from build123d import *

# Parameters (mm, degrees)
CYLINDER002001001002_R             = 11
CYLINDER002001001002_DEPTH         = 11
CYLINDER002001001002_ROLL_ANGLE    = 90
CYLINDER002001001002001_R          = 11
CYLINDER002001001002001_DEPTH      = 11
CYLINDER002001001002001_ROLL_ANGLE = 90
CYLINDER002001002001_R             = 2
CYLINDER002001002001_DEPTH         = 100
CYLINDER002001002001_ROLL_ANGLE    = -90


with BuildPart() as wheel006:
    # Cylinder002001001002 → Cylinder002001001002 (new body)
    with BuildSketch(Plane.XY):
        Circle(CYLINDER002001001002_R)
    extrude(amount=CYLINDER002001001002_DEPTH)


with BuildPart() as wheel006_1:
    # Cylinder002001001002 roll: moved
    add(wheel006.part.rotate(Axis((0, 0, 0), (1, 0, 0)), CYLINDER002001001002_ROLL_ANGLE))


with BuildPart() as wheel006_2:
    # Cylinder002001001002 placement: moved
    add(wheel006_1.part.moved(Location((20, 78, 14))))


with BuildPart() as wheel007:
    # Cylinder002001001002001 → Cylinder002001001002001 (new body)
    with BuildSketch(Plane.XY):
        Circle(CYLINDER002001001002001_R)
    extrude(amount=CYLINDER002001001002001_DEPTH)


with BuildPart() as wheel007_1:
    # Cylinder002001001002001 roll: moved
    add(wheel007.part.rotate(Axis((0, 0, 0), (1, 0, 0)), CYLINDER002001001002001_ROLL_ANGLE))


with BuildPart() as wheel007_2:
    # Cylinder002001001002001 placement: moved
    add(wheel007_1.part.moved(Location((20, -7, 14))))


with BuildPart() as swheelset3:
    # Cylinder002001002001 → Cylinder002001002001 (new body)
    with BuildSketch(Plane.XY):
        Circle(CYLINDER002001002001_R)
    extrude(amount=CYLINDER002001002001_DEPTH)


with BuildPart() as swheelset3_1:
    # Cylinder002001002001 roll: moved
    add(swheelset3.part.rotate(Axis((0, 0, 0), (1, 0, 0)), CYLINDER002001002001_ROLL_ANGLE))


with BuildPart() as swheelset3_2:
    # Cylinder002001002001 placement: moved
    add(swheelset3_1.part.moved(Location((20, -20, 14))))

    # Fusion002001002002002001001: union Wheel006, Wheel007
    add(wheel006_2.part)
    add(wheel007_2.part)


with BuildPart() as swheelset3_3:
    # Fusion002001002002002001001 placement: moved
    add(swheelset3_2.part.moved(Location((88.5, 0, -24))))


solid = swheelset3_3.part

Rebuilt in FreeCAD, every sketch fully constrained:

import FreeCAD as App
import Part
import Sketcher
from FreeCAD import Vector

doc = App.newDocument("Part")
body = doc.addObject("PartDesign::Body", "Body")

sketch1 = doc.addObject("Sketcher::SketchObject", "Sketch")
body.addObject(sketch1)
sketch1.AttachmentSupport = (doc.XY_Plane, [""])
sketch1.MapMode = "FlatFace"
sketch1.addGeometry(Part.Circle(Vector(0, 0, 0), Vector(0, 0, 1), 11), False)
sketch1.addConstraint([
    Sketcher.Constraint("Coincident", 0, 3, -1, 1),
    Sketcher.Constraint("Diameter", 0, 22.0),
])
pad1 = doc.addObject("PartDesign::Pad", "Pad")
body.addObject(pad1)
pad1.Profile = sketch1
pad1.Length = 11
body2 = doc.addObject("PartDesign::Body", "Body001")
doc.recompute()

body.Placement = App.Placement(Vector(0, 0, 0), App.Rotation(Vector(1, 0, 0), 90))
boolean = doc.addObject("PartDesign::Boolean", "Boolean")
body2.addObject(boolean)
boolean.Type = "Fuse"
boolean.addObjects([body])
body3 = doc.addObject("PartDesign::Body", "Body002")
doc.recompute()

body2.Placement = App.Placement(Vector(20, 78, 14), App.Rotation(Vector(0, 0, 1), 0))
boolean2 = doc.addObject("PartDesign::Boolean", "Boolean001")
body3.addObject(boolean2)
boolean2.Type = "Fuse"
boolean2.addObjects([body2])
body4 = doc.addObject("PartDesign::Body", "Body003")

sketch2 = doc.addObject("Sketcher::SketchObject", "Sketch001")
body4.addObject(sketch2)
sketch2.AttachmentSupport = (doc.getObject("XY_Plane003"), [""])
sketch2.MapMode = "FlatFace"
sketch2.addGeometry(Part.Circle(Vector(0, 0, 0), Vector(0, 0, 1), 11), False)
sketch2.addConstraint([
    Sketcher.Constraint("Coincident", 0, 3, -1, 1),
    Sketcher.Constraint("Diameter", 0, 22.0),
])
pad2 = doc.addObject("PartDesign::Pad", "Pad001")
body4.addObject(pad2)
pad2.Profile = sketch2
pad2.Length = 11
body5 = doc.addObject("PartDesign::Body", "Body004")
doc.recompute()

body4.Placement = App.Placement(Vector(0, 0, 0), App.Rotation(Vector(1, 0, 0), 90))
boolean3 = doc.addObject("PartDesign::Boolean", "Boolean002")
body5.addObject(boolean3)
boolean3.Type = "Fuse"
boolean3.addObjects([body4])
body6 = doc.addObject("PartDesign::Body", "Body005")
doc.recompute()

body5.Placement = App.Placement(Vector(20, -7, 14), App.Rotation(Vector(0, 0, 1), 0))
boolean4 = doc.addObject("PartDesign::Boolean", "Boolean003")
body6.addObject(boolean4)
boolean4.Type = "Fuse"
boolean4.addObjects([body5])
body7 = doc.addObject("PartDesign::Body", "Body006")

sketch3 = doc.addObject("Sketcher::SketchObject", "Sketch002")
body7.addObject(sketch3)
sketch3.AttachmentSupport = (doc.getObject("XY_Plane006"), [""])
sketch3.MapMode = "FlatFace"
sketch3.addGeometry(Part.Circle(Vector(0, 0, 0), Vector(0, 0, 1), 2), False)
sketch3.addConstraint([
    Sketcher.Constraint("Coincident", 0, 3, -1, 1),
    Sketcher.Constraint("Diameter", 0, 4.0),
])
pad3 = doc.addObject("PartDesign::Pad", "Pad002")
body7.addObject(pad3)
pad3.Profile = sketch3
pad3.Length = 100
body8 = doc.addObject("PartDesign::Body", "Body007")
doc.recompute()

body7.Placement = App.Placement(Vector(0, 0, 0), App.Rotation(Vector(1, 0, 0), 270))
boolean5 = doc.addObject("PartDesign::Boolean", "Boolean004")
body8.addObject(boolean5)
boolean5.Type = "Fuse"
boolean5.addObjects([body7])
body9 = doc.addObject("PartDesign::Body", "Body008")
doc.recompute()

body8.Placement = App.Placement(Vector(20, -20, 14), App.Rotation(Vector(0, 0, 1), 0))
boolean6 = doc.addObject("PartDesign::Boolean", "Boolean005")
body9.addObject(boolean6)
boolean6.Type = "Fuse"
boolean6.addObjects([body8])
doc.recompute()

boolean7 = doc.addObject("PartDesign::Boolean", "Boolean006")
body9.addObject(boolean7)
boolean7.Type = "Fuse"
boolean7.addObjects([body3])
doc.recompute()

boolean8 = doc.addObject("PartDesign::Boolean", "Boolean007")
body9.addObject(boolean8)
boolean8.Type = "Fuse"
boolean8.addObjects([body6])
body10 = doc.addObject("PartDesign::Body", "Body009")
doc.recompute()

body9.Placement = App.Placement(Vector(88.5, 0, -24), App.Rotation(Vector(0, 0, 1), 0))
boolean9 = doc.addObject("PartDesign::Boolean", "Boolean008")
body10.addObject(boolean9)
boolean9.Type = "Fuse"
boolean9.addObjects([body9])

doc.recompute()
